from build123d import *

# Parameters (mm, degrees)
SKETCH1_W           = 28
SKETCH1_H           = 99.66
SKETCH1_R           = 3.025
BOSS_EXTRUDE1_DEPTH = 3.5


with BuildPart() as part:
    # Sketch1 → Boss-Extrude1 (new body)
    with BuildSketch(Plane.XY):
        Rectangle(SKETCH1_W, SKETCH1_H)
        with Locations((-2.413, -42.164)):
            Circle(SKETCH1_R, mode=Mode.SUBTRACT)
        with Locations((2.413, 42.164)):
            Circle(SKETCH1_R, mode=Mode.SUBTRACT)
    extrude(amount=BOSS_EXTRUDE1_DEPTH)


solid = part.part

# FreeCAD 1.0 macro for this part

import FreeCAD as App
import Part
import Sketcher

V = App.Vector
Q = App.Units.Quantity


def add_polygon(sketch, points):
    """Adds a closed chain of lines whose ends are joined by coincident constraints."""
    first, n = sketch.GeometryCount, len(points)
    for a, b in zip(points, points[1:] + points[:1]):
        sketch.addGeometry(Part.LineSegment(App.Vector(*a, 0), App.Vector(*b, 0)), False)
    for i in range(n):
        sketch.addConstraint(Sketcher.Constraint("Coincident", first + i, 2, first + (i + 1) % n, 1))

doc = App.newDocument("Part")
params = doc.addObject("Spreadsheet::Sheet", "Params")
for row, (alias, value) in enumerate([
    ("sketch1_diameter", "6.05 mm"),
    ("sketch1_width", "28 mm"),
    ("sketch1_height", "99.66 mm"),
    ("pad1_length", "3.5 mm"),
], start=1):
    params.set(f"A{row}", alias)
    params.set(f"B{row}", "=" + value)
    params.setAlias(f"B{row}", alias)

body = doc.addObject("PartDesign::Body", "Body")

sketch1 = body.newObject("Sketcher::SketchObject", "Sketch")
sketch1.AttachmentSupport = (doc.getObject("XY_Plane"), [""])
sketch1.MapMode = "FlatFace"
add_polygon(sketch1, [(-14, 49.83), (-14, -49.83), (14, -49.83), (14, 49.83)])
sketch1.addGeometry(Part.Circle(V(-2.413, -42.164, 0), V(0, 0, 1), 3.025), False)
sketch1.addGeometry(Part.Circle(V(2.413, 42.164, 0), V(0, 0, 1), 3.025), False)
sketch1.addConstraint([
    Sketcher.Constraint("Vertical", 0),
    Sketcher.Constraint("Horizontal", 1),
    Sketcher.Constraint("Vertical", 2),
    Sketcher.Constraint("Horizontal", 3),
    Sketcher.Constraint("Equal", 4, 5),
    Sketcher.Constraint("Symmetric", 4, 3, 5, 3, -1, 1),
    Sketcher.Constraint("Symmetric", 0, 2, 2, 2, -1, 1),
    Sketcher.Constraint("Diameter", 4, Q("6.05 mm")),
    Sketcher.Constraint("DistanceX", 1, 1, 1, 2, Q("28 mm")),
    Sketcher.Constraint("DistanceY", 0, 2, 0, 1, Q("99.66 mm")),
    Sketcher.Constraint("DistanceX", 4, 3, -1, 1, Q("2.413 mm")),
    Sketcher.Constraint("DistanceY", 4, 3, -1, 1, Q("42.164 mm")),
])
sketch1.setExpression("Constraints[11]", "Params.sketch1_diameter")
sketch1.setExpression("Constraints[12]", "Params.sketch1_width")
sketch1.setExpression("Constraints[13]", "Params.sketch1_height")
pad1 = body.newObject("PartDesign::Pad", "Pad")
pad1.Profile = sketch1
pad1.setExpression("Length", "Params.pad1_length")

doc.recompute()
